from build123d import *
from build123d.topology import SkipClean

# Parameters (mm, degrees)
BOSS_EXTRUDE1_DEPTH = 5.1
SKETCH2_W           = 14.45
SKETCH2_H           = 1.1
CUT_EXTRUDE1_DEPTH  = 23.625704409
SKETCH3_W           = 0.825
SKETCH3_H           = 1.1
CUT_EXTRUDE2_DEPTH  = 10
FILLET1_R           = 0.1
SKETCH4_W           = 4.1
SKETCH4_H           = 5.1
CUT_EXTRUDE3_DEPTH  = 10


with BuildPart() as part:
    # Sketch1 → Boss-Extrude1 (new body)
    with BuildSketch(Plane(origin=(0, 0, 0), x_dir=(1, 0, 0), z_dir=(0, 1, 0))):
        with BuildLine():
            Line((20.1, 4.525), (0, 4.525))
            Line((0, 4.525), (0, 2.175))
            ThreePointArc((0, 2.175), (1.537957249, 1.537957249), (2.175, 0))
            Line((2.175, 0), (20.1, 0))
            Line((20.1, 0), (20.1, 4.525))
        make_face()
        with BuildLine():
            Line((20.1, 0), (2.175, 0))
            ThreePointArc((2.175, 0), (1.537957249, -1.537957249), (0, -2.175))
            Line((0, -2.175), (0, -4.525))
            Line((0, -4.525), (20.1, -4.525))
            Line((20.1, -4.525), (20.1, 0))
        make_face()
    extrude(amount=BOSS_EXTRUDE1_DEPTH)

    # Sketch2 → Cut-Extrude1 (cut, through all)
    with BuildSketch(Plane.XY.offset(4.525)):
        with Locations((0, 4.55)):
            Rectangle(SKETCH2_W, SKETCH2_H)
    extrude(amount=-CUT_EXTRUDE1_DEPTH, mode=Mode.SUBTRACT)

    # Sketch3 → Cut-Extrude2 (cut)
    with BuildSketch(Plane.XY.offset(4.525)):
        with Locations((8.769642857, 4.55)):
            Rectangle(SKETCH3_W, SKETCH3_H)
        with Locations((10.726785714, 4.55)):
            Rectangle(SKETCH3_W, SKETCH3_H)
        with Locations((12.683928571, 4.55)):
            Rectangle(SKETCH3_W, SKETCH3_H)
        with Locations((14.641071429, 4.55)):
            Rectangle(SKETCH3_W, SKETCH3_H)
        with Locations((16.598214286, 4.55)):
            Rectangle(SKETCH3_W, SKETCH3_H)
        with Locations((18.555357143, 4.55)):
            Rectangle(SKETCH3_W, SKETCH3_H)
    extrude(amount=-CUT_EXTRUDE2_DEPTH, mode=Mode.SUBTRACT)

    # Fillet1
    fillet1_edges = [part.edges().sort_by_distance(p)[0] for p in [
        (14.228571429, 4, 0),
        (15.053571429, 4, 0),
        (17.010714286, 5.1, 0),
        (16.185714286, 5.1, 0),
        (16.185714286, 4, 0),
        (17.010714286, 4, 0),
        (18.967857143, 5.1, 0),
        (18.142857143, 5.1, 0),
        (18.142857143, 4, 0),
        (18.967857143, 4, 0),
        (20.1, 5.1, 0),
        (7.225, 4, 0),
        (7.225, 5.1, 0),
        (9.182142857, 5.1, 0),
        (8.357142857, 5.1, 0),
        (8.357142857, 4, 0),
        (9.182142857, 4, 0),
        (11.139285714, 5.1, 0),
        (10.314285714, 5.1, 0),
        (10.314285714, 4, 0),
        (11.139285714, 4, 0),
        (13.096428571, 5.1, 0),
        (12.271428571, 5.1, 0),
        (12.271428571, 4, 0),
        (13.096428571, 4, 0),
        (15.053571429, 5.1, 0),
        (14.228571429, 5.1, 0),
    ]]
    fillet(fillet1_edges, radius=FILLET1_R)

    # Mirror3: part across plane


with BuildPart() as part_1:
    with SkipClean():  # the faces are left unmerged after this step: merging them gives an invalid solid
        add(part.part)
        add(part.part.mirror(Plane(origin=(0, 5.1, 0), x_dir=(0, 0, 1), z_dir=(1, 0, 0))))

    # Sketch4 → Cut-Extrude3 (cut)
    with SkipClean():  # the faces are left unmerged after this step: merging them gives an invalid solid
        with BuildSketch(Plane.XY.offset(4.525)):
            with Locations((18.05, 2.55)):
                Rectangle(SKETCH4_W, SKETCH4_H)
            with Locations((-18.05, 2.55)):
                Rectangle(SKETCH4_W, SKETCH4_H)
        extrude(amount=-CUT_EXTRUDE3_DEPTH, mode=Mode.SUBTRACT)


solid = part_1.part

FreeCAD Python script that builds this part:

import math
import FreeCAD as App
import Part
import Sketcher
from FreeCAD import Vector
Q = App.Units.Quantity


def edges_at(feature, points):
    """Names of the edges that pass closest to the given points."""
    edges = feature.Shape.Edges
    near = lambda p: min(range(len(edges)), key=lambda i: edges[i].distToShape(Part.Vertex(*p))[0])
    return sorted({f"Edge{near(p) + 1}" for p in points})

doc = App.newDocument("Part")
body = doc.addObject("PartDesign::Body", "Body")

sketch1 = body.newObject("Sketcher::SketchObject", "Sketch")
sketch1.AttachmentSupport = (doc.getObject("XZ_Plane"), [""])
sketch1.MapMode = "FlatFace"
sketch1.addGeometry([
    Part.LineSegment(Vector(20.1, -4.525, 0), Vector(0, -4.525, 0)),
    Part.LineSegment(Vector(0, -4.525, 0), Vector(0, -2.175, 0)),
    Part.ArcOfCircle(Part.Circle(Vector(0, 0, 0), Vector(0, 0, 1), 2.175), math.radians(-90), math.radians(0)),
    Part.ArcOfCircle(Part.Circle(Vector(0, 0, 0), Vector(0, 0, 1), 2.175), math.radians(0), math.radians(90)),
    Part.LineSegment(Vector(0, 2.175, 0), Vector(0, 4.525, 0)),
    Part.LineSegment(Vector(0, 4.525, 0), Vector(20.1, 4.525, 0)),
    Part.LineSegment(Vector(20.1, 4.525, 0), Vector(20.1, -4.525, 0)),
], False)
sketch1.addConstraint([
    Sketcher.Constraint("Coincident", 0, 2, 1, 1),
    Sketcher.Constraint("Coincident", 1, 2, 2, 1),
    Sketcher.Constraint("Tangent", 2, 2, 3, 1),
    Sketcher.Constraint("Coincident", 3, 2, 4, 1),
    Sketcher.Constraint("Coincident", 4, 2, 5, 1),
    Sketcher.Constraint("Coincident", 5, 2, 6, 1),
    Sketcher.Constraint("Coincident", 6, 2, 0, 1),
    Sketcher.Constraint("Horizontal", 0),
    Sketcher.Constraint("Vertical", 1),
    Sketcher.Constraint("Vertical", 4),
    Sketcher.Constraint("Horizontal", 5),
    Sketcher.Constraint("Vertical", 6),
    Sketcher.Constraint("Coincident", 2, 3, -1, 1),
    Sketcher.Constraint("Equal", 2, 3),
    Sketcher.Constraint("Symmetric", 0, 2, 4, 2, -1, 1),
    Sketcher.Constraint("PointOnObject", 0, 2, -2),
    Sketcher.Constraint("PointOnObject", 2, 2, -1),
    Sketcher.Constraint("DistanceX", 0, 2, 0, 1, Q("20.1 mm")),
    Sketcher.Constraint("Radius", 2, Q("2.175 mm")),
    Sketcher.Constraint("DistanceY", 1, 1, 1, 2, Q("2.35 mm")),
])
pad1 = body.newObject("PartDesign::Pad", "Pad")
pad1.Profile = sketch1
pad1.Length = 5.1
pad1.Reversed = True

sketch2 = body.newObject("Sketcher::SketchObject", "Sketch001")
sketch2.AttachmentSupport = (doc.getObject("XY_Plane"), [""])
sketch2.MapMode = "FlatFace"
sketch2.AttachmentOffset = App.Placement(Vector(0, 0, 4.525), App.Rotation())
sketch2.addGeometry([
    Part.LineSegment(Vector(-7.225, 5.1, 0), Vector(-7.225, 4, 0)),
    Part.LineSegment(Vector(-7.225, 4, 0), Vector(7.225, 4, 0)),
    Part.LineSegment(Vector(7.225, 4, 0), Vector(7.225, 5.1, 0)),
    Part.LineSegment(Vector(7.225, 5.1, 0), Vector(-7.225, 5.1, 0)),
], False)
sketch2.addConstraint([
    Sketcher.Constraint("Coincident", 0, 2, 1, 1),
    Sketcher.Constraint("Coincident", 1, 2, 2, 1),
    Sketcher.Constraint("Coincident", 2, 2, 3, 1),
    Sketcher.Constraint("Coincident", 3, 2, 0, 1),
    Sketcher.Constraint("Vertical", 0),
    Sketcher.Constraint("Horizontal", 1),
    Sketcher.Constraint("Vertical", 2),
    Sketcher.Constraint("Horizontal", 3),
    Sketcher.Constraint("DistanceY", 0, 2, 0, 1, Q("1.1 mm")),
    Sketcher.Constraint("DistanceY", -1, 1, 0, 2, Q("4 mm")),
    Sketcher.Constraint("DistanceX", 1, 1, 1, 2, Q("14.45 mm")),
    Sketcher.Constraint("DistanceX", 0, 2, -1, 1, Q("7.225 mm")),
])
pocket1 = body.newObject("PartDesign::Pocket", "Pocket")
pocket1.Profile = sketch2
pocket1.Type = "ThroughAll"

sketch3 = body.newObject("Sketcher::SketchObject", "Sketch002")
sketch3.AttachmentSupport = (doc.getObject("XY_Plane"), [""])
sketch3.MapMode = "FlatFace"
sketch3.AttachmentOffset = App.Placement(Vector(0, 0, 4.525), App.Rotation())
sketch3.addGeometry([
    Part.LineSegment(Vector(8.357143, 5.1, 0), Vector(8.357143, 4, 0)),
    Part.LineSegment(Vector(8.357143, 4, 0), Vector(9.182143, 4, 0)),
    Part.LineSegment(Vector(9.182143, 4, 0), Vector(9.182143, 5.1, 0)),
    Part.LineSegment(Vector(9.182143, 5.1, 0), Vector(8.357143, 5.1, 0)),
    Part.LineSegment(Vector(10.314286, 5.1, 0), Vector(10.314286, 4, 0)),
    Part.LineSegment(Vector(10.314286, 4, 0), Vector(11.139286, 4, 0)),
    Part.LineSegment(Vector(11.139286, 4, 0), Vector(11.139286, 5.1, 0)),
    Part.LineSegment(Vector(11.139286, 5.1, 0), Vector(10.314286, 5.1, 0)),
    Part.LineSegment(Vector(12.271429, 5.1, 0), Vector(12.271429, 4, 0)),
    Part.LineSegment(Vector(12.271429, 4, 0), Vector(13.096429, 4, 0)),
    Part.LineSegment(Vector(13.096429, 4, 0), Vector(13.096429, 5.1, 0)),
    Part.LineSegment(Vector(13.096429, 5.1, 0), Vector(12.271429, 5.1, 0)),
    Part.LineSegment(Vector(14.228571, 5.1, 0), Vector(14.228571, 4, 0)),
    Part.LineSegment(Vector(14.228571, 4, 0), Vector(15.053571, 4, 0)),
    Part.LineSegment(Vector(15.053571, 4, 0), Vector(15.053571, 5.1, 0)),
    Part.LineSegment(Vector(15.053571, 5.1, 0), Vector(14.228571, 5.1, 0)),
    Part.LineSegment(Vector(16.185714, 5.1, 0), Vector(16.185714, 4, 0)),
    Part.LineSegment(Vector(16.185714, 4, 0), Vector(17.010714, 4, 0)),
    Part.LineSegment(Vector(17.010714, 4, 0), Vector(17.010714, 5.1, 0)),
    Part.LineSegment(Vector(17.010714, 5.1, 0), Vector(16.185714, 5.1, 0)),
    Part.LineSegment(Vector(18.142857, 5.1, 0), Vector(18.142857, 4, 0)),
    Part.LineSegment(Vector(18.142857, 4, 0), Vector(18.967857, 4, 0)),
    Part.LineSegment(Vector(18.967857, 4, 0), Vector(18.967857, 5.1, 0)),
    Part.LineSegment(Vector(18.967857, 5.1, 0), Vector(18.142857, 5.1, 0)),
], False)
sketch3.addConstraint([
    Sketcher.Constraint("Coincident", 0, 2, 1, 1),
    Sketcher.Constraint("Coincident", 1, 2, 2, 1),
    Sketcher.Constraint("Coincident", 2, 2, 3, 1),
    Sketcher.Constraint("Coincident", 3, 2, 0, 1),
    Sketcher.Constraint("Coincident", 4, 2, 5, 1),
    Sketcher.Constraint("Coincident", 5, 2, 6, 1),
    Sketcher.Constraint("Coincident", 6, 2, 7, 1),
    Sketcher.Constraint("Coincident", 7, 2, 4, 1),
    Sketcher.Constraint("Coincident", 8, 2, 9, 1),
    Sketcher.Constraint("Coincident", 9, 2, 10, 1),
    Sketcher.Constraint("Coincident", 10, 2, 11, 1),
    Sketcher.Constraint("Coincident", 11, 2, 8, 1),
    Sketcher.Constraint("Coincident", 12, 2, 13, 1),
    Sketcher.Constraint("Coincident", 13, 2, 14, 1),
    Sketcher.Constraint("Coincident", 14, 2, 15, 1),
    Sketcher.Constraint("Coincident", 15, 2, 12, 1),
    Sketcher.Constraint("Coincident", 16, 2, 17, 1),
    Sketcher.Constraint("Coincident", 17, 2, 18, 1),
    Sketcher.Constraint("Coincident", 18, 2, 19, 1),
    Sketcher.Constraint("Coincident", 19, 2, 16, 1),
    Sketcher.Constraint("Coincident", 20, 2, 21, 1),
    Sketcher.Constraint("Coincident", 21, 2, 22, 1),
    Sketcher.Constraint("Coincident", 22, 2, 23, 1),
    Sketcher.Constraint("Coincident", 23, 2, 20, 1),
    Sketcher.Constraint("Vertical", 0),
    Sketcher.Constraint("Horizontal", 1),
    Sketcher.Constraint("Vertical", 2),
    Sketcher.Constraint("Horizontal", 3),
    Sketcher.Constraint("Vertical", 4),
    Sketcher.Constraint("Horizontal", 5),
    Sketcher.Constraint("Vertical", 6),
    Sketcher.Constraint("Horizontal", 7),
    Sketcher.Constraint("Vertical", 8),
    Sketcher.Constraint("Horizontal", 9),
    Sketcher.Constraint("Vertical", 10),
    Sketcher.Constraint("Horizontal", 11),
    Sketcher.Constraint("Vertical", 12),
    Sketcher.Constraint("Horizontal", 13),
    Sketcher.Constraint("Vertical", 14),
    Sketcher.Constraint("Horizontal", 15),
    Sketcher.Constraint("Vertical", 16),
    Sketcher.Constraint("Horizontal", 17),
    Sketcher.Constraint("Vertical", 18),
    Sketcher.Constraint("Horizontal", 19),
    Sketcher.Constraint("Vertical", 20),
    Sketcher.Constraint("Horizontal", 21),
    Sketcher.Constraint("Vertical", 22),
    Sketcher.Constraint("Horizontal", 23),
    Sketcher.Constraint("Horizontal", 1, 2, 4, 2),
    Sketcher.Constraint("Horizontal", 3, 2, 6, 2),
    Sketcher.Constraint("Horizontal", 5, 2, 8, 2),
    Sketcher.Constraint("Horizontal", 7, 2, 10, 2),
    Sketcher.Constraint("Horizontal", 9, 2, 12, 2),
    Sketcher.Constraint("Horizontal", 11, 2, 14, 2),
    Sketcher.Constraint("Horizontal", 13, 2, 16, 2),
    Sketcher.Constraint("Horizontal", 15, 2, 18, 2),
    Sketcher.Constraint("Horizontal", 17, 2, 20, 2),
    Sketcher.Constraint("Horizontal", 19, 2, 22, 2),
    Sketcher.Constraint("Equal", 3, 5),
    Sketcher.Constraint("Equal", 7, 9),
    Sketcher.Constraint("Equal", 11, 13),
    Sketcher.Constraint("Equal", 15, 17),
    Sketcher.Constraint("Equal", 19, 21),
    Sketcher.Constraint("DistanceY", 0, 2, 0, 1, Q("1.1 mm")),
    Sketcher.Constraint("DistanceY", -1, 1, 0, 2, Q("4 mm")),
    Sketcher.Constraint("DistanceX", 1, 1, 1, 2, Q("0.825 mm")),
    Sketcher.Constraint("DistanceX", -1, 1, 8, 2, Q("12.271429 mm")),
    Sketcher.Constraint("DistanceX", -1, 1, 12, 2, Q("14.228571 mm")),
    Sketcher.Constraint("DistanceX", -1, 1, 0, 2, Q("8.357143 mm")),
    Sketcher.Constraint("DistanceX", -1, 1, 4, 2, Q("10.314286 mm")),
    Sketcher.Constraint("DistanceX", -1, 1, 16, 2, Q("16.185714 mm")),
    Sketcher.Constraint("DistanceX", -1, 1, 20, 2, Q("18.142857 mm")),
])
pocket2 = body.newObject("PartDesign::Pocket", "Pocket001")
pocket2.Profile = sketch3
pocket2.Length = 10
doc.recompute()

fillet = body.newObject("PartDesign::Fillet", "Fillet")
fillet.Base = (pocket2, edges_at(pocket2, [
    (14.229, 4, 0),
    (15.054, 4, 0),
    (17.011, 5.1, 0),
    (16.186, 5.1, 0),
    (16.186, 4, 0),
    (17.011, 4, 0),
    (18.968, 5.1, 0),
    (18.143, 5.1, 0),
    (18.143, 4, 0),
    (18.968, 4, 0),
    (20.1, 5.1, 0),
    (7.225, 4, 0),
    (7.225, 5.1, 0),
    (9.182, 5.1, 0),
    (8.357, 5.1, 0),
    (8.357, 4, 0),
    (9.182, 4, 0),
    (11.139, 5.1, 0),
    (10.314, 5.1, 0),
    (10.314, 4, 0),
    (11.139, 4, 0),
    (13.096, 5.1, 0),
    (12.271, 5.1, 0),
    (12.271, 4, 0),
    (13.096, 4, 0),
    (15.054, 5.1, 0),
    (14.229, 5.1, 0),
]))
fillet.Radius = 0.1
body2 = doc.addObject("PartDesign::Body", "Body001")
doc.recompute()

body2.BaseFeature = body
doc.recompute()

mirroring = doc.addObject("Part::Mirroring", "Mirroring")
mirroring.Source = body
mirroring.Base = Vector(0, 5.1, 0)
mirroring.Normal = Vector(1, 0, 0)
body3 = doc.addObject("PartDesign::Body", "Body002")
body3.BaseFeature = mirroring
boolean = body2.newObject("PartDesign::Boolean", "Boolean")
boolean.Type = "Fuse"
boolean.addObjects([body3])
doc.recompute()

sketch4 = body2.newObject("Sketcher::SketchObject", "Sketch003")
sketch4.AttachmentSupport = (doc.getObject("XY_Plane001"), [""])
sketch4.MapMode = "FlatFace"
sketch4.AttachmentOffset = App.Placement(Vector(0, 0, 4.525), App.Rotation())
sketch4.addGeometry([
    Part.LineSegment(Vector(16, 5.1, 0), Vector(16, 0, 0)),
    Part.LineSegment(Vector(16, 0, 0), Vector(20.1, 0, 0)),
    Part.LineSegment(Vector(20.1, 0, 0), Vector(20.1, 5.1, 0)),
    Part.LineSegment(Vector(20.1, 5.1, 0), Vector(16, 5.1, 0)),
    Part.LineSegment(Vector(-20.1, 5.1, 0), Vector(-20.1, 0, 0)),
    Part.LineSegment(Vector(-20.1, 0, 0), Vector(-16, 0, 0)),
    Part.LineSegment(Vector(-16, 0, 0), Vector(-16, 5.1, 0)),
    Part.LineSegment(Vector(-16, 5.1, 0), Vector(-20.1, 5.1, 0)),
], False)
sketch4.addConstraint([
    Sketcher.Constraint("Coincident", 0, 2, 1, 1),
    Sketcher.Constraint("Coincident", 1, 2, 2, 1),
    Sketcher.Constraint("Coincident", 2, 2, 3, 1),
    Sketcher.Constraint("Coincident", 3, 2, 0, 1),
    Sketcher.Constraint("Coincident", 4, 2, 5, 1),
    Sketcher.Constraint("Coincident", 5, 2, 6, 1),
    Sketcher.Constraint("Coincident", 6, 2, 7, 1),
    Sketcher.Constraint("Coincident", 7, 2, 4, 1),
    Sketcher.Constraint("Vertical", 0),
    Sketcher.Constraint("Horizontal", 1),
    Sketcher.Constraint("Vertical", 2),
    Sketcher.Constraint("Horizontal", 3),
    Sketcher.Constraint("Vertical", 4),
    Sketcher.Constraint("Horizontal", 5),
    Sketcher.Constraint("Vertical", 6),
    Sketcher.Constraint("Horizontal", 7),
    Sketcher.Constraint("Symmetric", 1, 2, 4, 2, -1, 1),
    Sketcher.Constraint("Symmetric", 0, 2, 5, 2, -2),
    Sketcher.Constraint("Horizontal", 3, 2, 6, 2),
    Sketcher.Constraint("DistanceX", 1, 1, 1, 2, Q("4.1 mm")),
    Sketcher.Constraint("DistanceY", 0, 2, 0, 1, Q("5.1 mm")),
    Sketcher.Constraint("DistanceX", -1, 1, 0, 2, Q("16 mm")),
])
pocket3 = body2.newObject("PartDesign::Pocket", "Pocket002")
pocket3.Profile = sketch4
pocket3.Length = 10
mirroring.Visibility = False

doc.recompute()
